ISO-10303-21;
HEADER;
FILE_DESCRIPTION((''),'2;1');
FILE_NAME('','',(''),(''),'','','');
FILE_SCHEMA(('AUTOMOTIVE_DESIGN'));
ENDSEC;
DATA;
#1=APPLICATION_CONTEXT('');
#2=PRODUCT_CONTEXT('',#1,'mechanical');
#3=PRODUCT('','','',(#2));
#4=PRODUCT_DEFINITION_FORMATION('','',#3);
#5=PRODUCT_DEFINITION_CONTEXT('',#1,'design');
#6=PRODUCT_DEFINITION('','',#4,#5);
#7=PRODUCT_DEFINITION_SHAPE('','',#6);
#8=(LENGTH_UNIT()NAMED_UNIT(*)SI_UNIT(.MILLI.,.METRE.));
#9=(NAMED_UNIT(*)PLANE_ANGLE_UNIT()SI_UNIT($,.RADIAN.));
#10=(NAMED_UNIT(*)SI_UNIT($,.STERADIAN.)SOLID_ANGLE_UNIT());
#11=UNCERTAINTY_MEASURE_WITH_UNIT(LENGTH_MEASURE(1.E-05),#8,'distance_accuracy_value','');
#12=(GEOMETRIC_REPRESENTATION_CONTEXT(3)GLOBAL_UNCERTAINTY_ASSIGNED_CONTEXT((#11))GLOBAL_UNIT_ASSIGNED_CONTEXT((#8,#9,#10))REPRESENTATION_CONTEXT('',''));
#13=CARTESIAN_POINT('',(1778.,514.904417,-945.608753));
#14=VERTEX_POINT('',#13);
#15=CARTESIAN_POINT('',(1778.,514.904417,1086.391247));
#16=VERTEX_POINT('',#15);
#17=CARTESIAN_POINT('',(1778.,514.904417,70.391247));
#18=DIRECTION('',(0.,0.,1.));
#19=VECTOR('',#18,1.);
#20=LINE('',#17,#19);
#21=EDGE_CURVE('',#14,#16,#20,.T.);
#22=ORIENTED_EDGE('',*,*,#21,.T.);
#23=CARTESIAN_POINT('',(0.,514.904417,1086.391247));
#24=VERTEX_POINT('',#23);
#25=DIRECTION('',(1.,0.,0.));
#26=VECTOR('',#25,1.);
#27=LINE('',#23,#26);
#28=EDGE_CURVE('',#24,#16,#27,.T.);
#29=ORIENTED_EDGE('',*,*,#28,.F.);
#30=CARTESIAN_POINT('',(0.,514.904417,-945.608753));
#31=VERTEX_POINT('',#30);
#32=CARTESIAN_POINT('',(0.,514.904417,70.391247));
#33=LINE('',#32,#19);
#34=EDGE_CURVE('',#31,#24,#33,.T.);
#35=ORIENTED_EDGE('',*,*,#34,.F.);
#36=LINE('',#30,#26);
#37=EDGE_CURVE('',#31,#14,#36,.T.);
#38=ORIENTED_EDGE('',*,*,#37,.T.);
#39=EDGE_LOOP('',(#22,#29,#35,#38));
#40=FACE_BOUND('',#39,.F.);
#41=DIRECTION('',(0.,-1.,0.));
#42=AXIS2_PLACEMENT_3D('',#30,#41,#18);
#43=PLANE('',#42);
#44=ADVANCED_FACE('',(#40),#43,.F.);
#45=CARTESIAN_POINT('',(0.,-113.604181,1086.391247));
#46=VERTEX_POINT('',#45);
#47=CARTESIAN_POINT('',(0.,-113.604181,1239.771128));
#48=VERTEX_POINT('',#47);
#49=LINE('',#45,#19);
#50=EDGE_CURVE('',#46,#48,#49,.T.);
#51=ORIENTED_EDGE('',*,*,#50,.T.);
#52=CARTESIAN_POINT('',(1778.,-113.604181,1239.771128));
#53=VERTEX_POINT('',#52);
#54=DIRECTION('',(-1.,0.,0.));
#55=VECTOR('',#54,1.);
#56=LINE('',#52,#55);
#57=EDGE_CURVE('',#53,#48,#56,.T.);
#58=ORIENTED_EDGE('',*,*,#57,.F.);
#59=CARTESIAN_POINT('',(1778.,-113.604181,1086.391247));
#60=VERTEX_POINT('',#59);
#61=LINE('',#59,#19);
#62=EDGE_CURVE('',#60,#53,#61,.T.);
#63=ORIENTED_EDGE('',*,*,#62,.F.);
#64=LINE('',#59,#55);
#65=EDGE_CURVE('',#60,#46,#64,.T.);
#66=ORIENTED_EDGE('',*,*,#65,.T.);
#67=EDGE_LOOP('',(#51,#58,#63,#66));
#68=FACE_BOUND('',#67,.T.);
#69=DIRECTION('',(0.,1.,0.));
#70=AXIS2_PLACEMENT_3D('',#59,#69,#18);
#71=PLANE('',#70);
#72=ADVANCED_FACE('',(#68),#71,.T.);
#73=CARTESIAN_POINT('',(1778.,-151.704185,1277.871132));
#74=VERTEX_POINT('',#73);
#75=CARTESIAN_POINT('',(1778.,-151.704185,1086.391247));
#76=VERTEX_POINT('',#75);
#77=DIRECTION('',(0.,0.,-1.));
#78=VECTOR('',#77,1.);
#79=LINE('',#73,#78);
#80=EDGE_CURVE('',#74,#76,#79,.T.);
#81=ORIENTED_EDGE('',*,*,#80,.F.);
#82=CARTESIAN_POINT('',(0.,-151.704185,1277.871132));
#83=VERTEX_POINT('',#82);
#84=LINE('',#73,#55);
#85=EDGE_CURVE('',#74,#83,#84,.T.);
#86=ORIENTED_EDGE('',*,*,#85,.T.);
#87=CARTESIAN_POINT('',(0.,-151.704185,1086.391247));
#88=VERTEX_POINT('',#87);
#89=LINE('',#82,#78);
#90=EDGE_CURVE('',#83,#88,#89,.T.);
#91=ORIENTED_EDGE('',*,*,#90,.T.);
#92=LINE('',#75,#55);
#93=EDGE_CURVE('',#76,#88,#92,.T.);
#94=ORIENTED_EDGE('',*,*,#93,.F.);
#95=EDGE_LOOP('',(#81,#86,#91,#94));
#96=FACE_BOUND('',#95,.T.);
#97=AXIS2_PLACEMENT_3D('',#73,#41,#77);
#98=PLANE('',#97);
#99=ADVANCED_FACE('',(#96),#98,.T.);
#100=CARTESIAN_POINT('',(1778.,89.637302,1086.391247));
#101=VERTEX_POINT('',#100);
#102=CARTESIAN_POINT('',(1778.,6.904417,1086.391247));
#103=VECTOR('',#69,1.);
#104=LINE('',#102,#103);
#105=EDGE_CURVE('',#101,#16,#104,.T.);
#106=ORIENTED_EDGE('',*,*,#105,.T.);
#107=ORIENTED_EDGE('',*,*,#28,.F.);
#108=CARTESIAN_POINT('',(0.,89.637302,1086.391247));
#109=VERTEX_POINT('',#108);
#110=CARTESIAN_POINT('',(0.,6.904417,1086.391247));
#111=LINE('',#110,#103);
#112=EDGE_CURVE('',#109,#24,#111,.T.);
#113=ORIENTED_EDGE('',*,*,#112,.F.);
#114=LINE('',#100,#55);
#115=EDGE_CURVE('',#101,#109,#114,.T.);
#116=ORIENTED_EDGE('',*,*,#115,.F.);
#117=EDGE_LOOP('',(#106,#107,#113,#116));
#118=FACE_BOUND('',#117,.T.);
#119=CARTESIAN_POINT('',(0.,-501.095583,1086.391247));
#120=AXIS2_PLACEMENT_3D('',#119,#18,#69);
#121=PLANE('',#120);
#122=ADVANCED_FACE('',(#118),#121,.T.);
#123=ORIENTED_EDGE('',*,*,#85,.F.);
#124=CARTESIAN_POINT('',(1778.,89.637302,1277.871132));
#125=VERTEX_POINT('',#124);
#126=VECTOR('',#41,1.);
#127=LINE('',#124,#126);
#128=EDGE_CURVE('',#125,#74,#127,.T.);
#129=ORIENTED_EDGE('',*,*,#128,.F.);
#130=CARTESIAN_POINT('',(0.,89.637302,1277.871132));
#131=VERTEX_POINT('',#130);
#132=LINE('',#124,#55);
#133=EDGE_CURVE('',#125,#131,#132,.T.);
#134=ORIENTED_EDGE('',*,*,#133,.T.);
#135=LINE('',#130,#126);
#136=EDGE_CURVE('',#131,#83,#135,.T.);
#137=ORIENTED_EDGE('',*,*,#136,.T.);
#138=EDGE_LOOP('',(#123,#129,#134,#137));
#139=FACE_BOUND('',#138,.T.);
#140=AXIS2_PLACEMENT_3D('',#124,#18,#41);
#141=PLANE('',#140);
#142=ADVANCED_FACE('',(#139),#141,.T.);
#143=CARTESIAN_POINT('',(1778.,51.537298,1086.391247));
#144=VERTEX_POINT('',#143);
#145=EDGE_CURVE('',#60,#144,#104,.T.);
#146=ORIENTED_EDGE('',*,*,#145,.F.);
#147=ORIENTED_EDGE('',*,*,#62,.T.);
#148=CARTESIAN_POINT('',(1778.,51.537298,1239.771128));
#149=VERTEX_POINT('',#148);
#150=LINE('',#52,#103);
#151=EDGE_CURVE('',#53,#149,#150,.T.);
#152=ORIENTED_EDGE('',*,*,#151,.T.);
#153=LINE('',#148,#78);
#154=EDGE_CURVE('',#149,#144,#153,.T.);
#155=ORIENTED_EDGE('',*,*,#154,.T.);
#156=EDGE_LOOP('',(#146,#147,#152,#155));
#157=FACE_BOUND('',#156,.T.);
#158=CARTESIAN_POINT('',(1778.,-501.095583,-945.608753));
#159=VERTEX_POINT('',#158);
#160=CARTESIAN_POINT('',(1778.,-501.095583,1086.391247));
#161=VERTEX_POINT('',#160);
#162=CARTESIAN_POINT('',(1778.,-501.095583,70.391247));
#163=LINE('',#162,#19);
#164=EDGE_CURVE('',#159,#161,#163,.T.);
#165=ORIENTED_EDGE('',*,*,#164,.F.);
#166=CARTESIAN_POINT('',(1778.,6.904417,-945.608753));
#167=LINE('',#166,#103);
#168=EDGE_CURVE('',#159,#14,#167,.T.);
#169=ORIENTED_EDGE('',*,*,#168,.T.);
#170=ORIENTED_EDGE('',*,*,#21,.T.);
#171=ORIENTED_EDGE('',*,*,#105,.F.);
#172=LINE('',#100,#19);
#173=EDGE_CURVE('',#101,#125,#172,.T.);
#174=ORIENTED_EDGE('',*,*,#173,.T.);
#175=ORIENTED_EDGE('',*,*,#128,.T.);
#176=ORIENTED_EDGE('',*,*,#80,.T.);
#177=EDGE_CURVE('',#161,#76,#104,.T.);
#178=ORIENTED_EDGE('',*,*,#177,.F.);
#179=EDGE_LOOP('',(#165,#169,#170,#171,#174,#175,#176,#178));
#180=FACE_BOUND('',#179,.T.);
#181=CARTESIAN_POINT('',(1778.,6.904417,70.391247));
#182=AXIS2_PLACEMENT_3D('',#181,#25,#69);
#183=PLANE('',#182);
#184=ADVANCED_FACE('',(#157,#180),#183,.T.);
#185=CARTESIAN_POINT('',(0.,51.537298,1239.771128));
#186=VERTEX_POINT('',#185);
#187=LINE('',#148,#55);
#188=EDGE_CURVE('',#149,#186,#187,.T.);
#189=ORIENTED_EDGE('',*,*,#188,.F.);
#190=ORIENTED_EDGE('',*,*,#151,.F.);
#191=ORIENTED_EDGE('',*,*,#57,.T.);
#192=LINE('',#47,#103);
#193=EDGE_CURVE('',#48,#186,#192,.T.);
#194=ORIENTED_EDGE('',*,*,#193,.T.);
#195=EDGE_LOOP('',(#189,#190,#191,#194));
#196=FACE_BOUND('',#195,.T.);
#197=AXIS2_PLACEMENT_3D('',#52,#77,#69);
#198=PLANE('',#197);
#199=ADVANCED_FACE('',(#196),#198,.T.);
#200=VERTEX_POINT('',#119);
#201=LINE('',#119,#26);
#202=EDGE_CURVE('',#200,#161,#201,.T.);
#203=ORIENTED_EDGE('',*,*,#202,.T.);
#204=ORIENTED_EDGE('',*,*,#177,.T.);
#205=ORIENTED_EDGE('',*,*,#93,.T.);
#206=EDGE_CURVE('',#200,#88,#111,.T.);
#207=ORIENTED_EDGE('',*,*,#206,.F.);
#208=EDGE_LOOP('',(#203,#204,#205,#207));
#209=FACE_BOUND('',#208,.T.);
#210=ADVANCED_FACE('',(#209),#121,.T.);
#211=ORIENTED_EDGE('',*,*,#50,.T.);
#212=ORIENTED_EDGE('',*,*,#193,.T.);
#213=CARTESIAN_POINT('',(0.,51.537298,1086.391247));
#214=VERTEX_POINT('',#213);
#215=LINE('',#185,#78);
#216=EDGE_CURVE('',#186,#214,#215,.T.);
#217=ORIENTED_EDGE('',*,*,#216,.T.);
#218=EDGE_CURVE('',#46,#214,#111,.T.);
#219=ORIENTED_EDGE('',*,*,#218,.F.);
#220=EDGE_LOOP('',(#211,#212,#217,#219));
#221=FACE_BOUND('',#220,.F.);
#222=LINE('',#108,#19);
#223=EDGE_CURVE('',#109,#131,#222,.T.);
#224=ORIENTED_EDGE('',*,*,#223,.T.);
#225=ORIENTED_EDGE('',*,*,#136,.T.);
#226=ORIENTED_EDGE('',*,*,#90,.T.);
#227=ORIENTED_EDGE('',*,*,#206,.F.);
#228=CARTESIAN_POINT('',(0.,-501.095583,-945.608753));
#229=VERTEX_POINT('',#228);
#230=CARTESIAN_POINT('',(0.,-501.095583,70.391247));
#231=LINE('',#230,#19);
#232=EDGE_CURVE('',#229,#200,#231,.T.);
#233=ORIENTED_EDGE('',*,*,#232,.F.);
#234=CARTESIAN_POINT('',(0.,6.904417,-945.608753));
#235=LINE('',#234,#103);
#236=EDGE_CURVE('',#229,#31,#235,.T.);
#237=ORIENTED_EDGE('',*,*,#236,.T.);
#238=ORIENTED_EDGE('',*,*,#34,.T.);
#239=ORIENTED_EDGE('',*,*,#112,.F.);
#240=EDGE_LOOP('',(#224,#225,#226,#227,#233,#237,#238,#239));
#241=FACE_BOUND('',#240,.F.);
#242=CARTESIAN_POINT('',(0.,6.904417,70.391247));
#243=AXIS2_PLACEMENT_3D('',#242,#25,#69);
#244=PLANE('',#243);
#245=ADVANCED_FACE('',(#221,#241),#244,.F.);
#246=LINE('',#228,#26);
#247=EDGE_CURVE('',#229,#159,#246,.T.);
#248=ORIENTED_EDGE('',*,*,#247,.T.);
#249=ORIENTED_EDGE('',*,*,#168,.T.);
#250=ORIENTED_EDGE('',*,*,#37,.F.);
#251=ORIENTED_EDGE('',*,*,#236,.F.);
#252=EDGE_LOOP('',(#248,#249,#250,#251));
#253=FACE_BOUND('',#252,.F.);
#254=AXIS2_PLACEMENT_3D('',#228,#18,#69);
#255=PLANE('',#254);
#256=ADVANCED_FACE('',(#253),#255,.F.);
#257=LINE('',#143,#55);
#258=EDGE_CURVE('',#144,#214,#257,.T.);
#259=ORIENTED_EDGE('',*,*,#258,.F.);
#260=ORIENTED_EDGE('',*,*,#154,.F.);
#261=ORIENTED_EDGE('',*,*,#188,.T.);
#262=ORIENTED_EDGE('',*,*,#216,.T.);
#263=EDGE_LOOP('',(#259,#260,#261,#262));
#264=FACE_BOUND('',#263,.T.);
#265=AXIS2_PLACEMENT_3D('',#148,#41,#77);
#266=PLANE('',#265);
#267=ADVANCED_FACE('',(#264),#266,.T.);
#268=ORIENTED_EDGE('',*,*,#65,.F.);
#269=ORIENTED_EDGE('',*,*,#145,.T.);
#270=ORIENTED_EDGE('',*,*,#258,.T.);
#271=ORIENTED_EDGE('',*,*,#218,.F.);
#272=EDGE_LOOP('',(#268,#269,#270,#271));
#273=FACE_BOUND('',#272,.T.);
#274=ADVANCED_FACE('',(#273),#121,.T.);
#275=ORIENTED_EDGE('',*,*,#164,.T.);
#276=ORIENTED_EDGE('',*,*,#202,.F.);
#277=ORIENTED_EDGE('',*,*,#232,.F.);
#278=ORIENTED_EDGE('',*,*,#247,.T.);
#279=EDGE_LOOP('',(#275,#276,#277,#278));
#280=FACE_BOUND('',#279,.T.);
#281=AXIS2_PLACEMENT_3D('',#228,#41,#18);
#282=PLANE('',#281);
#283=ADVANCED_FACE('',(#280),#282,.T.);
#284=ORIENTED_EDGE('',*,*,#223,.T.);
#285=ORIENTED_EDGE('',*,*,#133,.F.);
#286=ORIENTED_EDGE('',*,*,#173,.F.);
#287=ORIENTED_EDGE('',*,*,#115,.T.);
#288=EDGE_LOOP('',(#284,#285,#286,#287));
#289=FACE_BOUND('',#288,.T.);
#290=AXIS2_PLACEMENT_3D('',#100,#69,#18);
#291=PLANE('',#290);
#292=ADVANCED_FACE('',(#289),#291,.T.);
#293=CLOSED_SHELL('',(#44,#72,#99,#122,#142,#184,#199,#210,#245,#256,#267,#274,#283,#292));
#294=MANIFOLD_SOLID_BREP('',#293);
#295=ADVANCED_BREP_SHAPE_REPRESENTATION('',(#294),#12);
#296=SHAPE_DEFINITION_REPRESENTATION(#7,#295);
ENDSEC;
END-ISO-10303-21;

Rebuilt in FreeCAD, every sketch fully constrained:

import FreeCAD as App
import Part
import Sketcher
from FreeCAD import Vector
Q = App.Units.Quantity


def add_polygon(sketch, points):
    """Adds a closed chain of lines whose ends are joined by coincident constraints."""
    first, n = sketch.GeometryCount, len(points)
    for a, b in zip(points, points[1:] + points[:1]):
        sketch.addGeometry(Part.LineSegment(App.Vector(*a, 0), App.Vector(*b, 0)), False)
    for i in range(n):
        sketch.addConstraint(Sketcher.Constraint("Coincident", first + i, 2, first + (i + 1) % n, 1))

doc = App.newDocument("Part")
body = doc.addObject("PartDesign::Body", "Body")

# Sketch on YZ plane
sketch1 = body.newObject("Sketcher::SketchObject", "Sketch")
sketch1.AttachmentSupport = (doc.getObject("YZ_Plane"), [""])
sketch1.MapMode = "FlatFace"
add_polygon(sketch1, [(-501, 1086), (-501, -946), (515, -946), (515, 1086)])  # lines 0-3
sketch1.addConstraint(Sketcher.Constraint("Vertical", 0))
sketch1.addConstraint(Sketcher.Constraint("Horizontal", 1))
sketch1.addConstraint(Sketcher.Constraint("Vertical", 2))
sketch1.addConstraint(Sketcher.Constraint("Horizontal", 3))
sketch1.addConstraint(Sketcher.Constraint("DistanceX", 1, 1, 1, 2, Q("40 in")))
sketch1.addConstraint(Sketcher.Constraint("DistanceY", 0, 2, 0, 1, Q("80 in")))
sketch1.addConstraint(Sketcher.Constraint("DistanceX", 0, 2, -1, 1, Q("501.095583 mm")))
sketch1.addConstraint(Sketcher.Constraint("DistanceY", 0, 2, -1, 1, Q("945.608753 mm")))
pad1 = body.newObject("PartDesign::Pad", "Pad")
pad1.Profile = sketch1
pad1.Length = Q("70 in")

# Sketch on YZ plane
sketch2 = body.newObject("Sketcher::SketchObject", "Sketch001")
sketch2.AttachmentSupport = (doc.getObject("YZ_Plane"), [""])
sketch2.MapMode = "FlatFace"
sketch2.AttachmentOffset = App.Placement(Vector(0, 0, 70 * 25.4), App.Rotation())
add_polygon(sketch2, [(-152, 1086), (-114, 1086), (-114, 1240), (52, 1240), (52, 1086), (90, 1086), (90, 1278), (-152, 1278)])  # lines 0-7
sketch2.addConstraint(Sketcher.Constraint("Horizontal", 0))
sketch2.addConstraint(Sketcher.Constraint("Vertical", 1))
sketch2.addConstraint(Sketcher.Constraint("Horizontal", 2))
sketch2.addConstraint(Sketcher.Constraint("Vertical", 3))
sketch2.addConstraint(Sketcher.Constraint("Horizontal", 4))
sketch2.addConstraint(Sketcher.Constraint("Vertical", 5))
sketch2.addConstraint(Sketcher.Constraint("Horizontal", 6))
sketch2.addConstraint(Sketcher.Constraint("Vertical", 7))
sketch2.addConstraint(Sketcher.Constraint("Horizontal", 0, 2, 3, 2))
sketch2.addConstraint(Sketcher.Constraint("Equal", 0, 4))
sketch2.addConstraint(Sketcher.Constraint("DistanceX", 0, 1, 0, 2, Q("1.5000002 in")))
sketch2.addConstraint(Sketcher.Constraint("DistanceY", 2, 2, 5, 2, Q("1.5000002 in")))
sketch2.addConstraint(Sketcher.Constraint("DistanceX", 2, 1, 2, 2, Q("165.141479 mm")))
sketch2.addConstraint(Sketcher.Constraint("DistanceY", 1, 1, 1, 2, Q("153.379881 mm")))
sketch2.addConstraint(Sketcher.Constraint("DistanceX", 0, 2, -1, 1, Q("113.604181 mm")))
sketch2.addConstraint(Sketcher.Constraint("DistanceY", -1, 1, 1, 2, Q("1239.771128 mm")))
pad2 = body.newObject("PartDesign::Pad", "Pad001")
pad2.Profile = sketch2
pad2.Length = Q("70 in")
pad2.Reversed = True

doc.recompute()
